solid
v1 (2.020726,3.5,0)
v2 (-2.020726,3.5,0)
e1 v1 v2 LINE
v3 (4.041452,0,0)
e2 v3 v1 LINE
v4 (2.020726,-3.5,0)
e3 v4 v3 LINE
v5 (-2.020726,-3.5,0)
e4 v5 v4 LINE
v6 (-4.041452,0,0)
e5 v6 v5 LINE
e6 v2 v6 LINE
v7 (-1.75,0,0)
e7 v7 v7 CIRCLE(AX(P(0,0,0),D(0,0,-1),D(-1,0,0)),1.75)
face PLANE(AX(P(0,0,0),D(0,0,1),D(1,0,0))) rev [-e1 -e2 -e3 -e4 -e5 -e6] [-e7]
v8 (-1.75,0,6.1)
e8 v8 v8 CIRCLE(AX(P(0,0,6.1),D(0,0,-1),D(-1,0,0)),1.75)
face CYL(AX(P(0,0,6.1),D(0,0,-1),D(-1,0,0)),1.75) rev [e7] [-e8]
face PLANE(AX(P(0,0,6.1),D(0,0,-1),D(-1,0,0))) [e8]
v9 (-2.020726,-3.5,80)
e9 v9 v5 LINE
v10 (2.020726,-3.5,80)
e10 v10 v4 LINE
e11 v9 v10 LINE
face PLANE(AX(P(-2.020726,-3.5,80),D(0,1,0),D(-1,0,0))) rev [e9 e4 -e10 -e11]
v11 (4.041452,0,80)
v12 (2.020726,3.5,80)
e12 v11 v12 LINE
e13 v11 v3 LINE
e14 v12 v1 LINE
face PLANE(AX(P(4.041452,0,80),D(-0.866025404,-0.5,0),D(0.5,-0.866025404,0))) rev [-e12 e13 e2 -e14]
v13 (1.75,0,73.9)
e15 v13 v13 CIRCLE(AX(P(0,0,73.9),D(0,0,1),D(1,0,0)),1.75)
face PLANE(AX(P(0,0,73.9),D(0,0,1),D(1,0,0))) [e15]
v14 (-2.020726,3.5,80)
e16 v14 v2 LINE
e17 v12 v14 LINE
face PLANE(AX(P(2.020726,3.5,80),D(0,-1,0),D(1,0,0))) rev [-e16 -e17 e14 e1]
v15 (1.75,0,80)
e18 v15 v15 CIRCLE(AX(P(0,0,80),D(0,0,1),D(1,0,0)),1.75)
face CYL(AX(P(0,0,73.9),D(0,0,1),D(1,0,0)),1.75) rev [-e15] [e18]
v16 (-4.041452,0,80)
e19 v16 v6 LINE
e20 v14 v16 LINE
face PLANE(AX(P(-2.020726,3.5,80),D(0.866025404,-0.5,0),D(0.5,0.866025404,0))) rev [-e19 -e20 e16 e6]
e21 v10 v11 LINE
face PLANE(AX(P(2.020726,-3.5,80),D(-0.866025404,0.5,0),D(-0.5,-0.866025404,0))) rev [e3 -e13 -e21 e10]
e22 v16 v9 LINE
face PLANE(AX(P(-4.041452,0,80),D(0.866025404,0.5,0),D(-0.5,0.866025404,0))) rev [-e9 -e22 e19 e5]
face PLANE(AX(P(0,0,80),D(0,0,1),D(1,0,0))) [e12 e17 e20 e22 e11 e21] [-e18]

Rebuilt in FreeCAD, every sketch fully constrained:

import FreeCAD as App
import Part
import Sketcher

V = App.Vector
Q = App.Units.Quantity

doc = App.newDocument("Part")
body = doc.addObject("PartDesign::Body", "Body")

sketch1 = body.newObject("Sketcher::SketchObject", "Sketch")
sketch1.AttachmentSupport = (doc.getObject("XY_Plane"), [""])
sketch1.MapMode = "FlatFace"
sketch1.addGeometry([
    Part.LineSegment(V(4.041452, 0, 0), V(2.020726, 3.5, 0)),
    Part.LineSegment(V(2.020726, 3.5, 0), V(-2.020726, 3.5, 0)),
    Part.LineSegment(V(-2.020726, 3.5, 0), V(-4.041452, 0, 0)),
    Part.LineSegment(V(-4.041452, 0, 0), V(-2.020726, -3.5, 0)),
    Part.LineSegment(V(-2.020726, -3.5, 0), V(2.020726, -3.5, 0)),
    Part.LineSegment(V(2.020726, -3.5, 0), V(4.041452, 0, 0)),
], False)
sketch1.addConstraint([
    Sketcher.Constraint("Coincident", 0, 2, 1, 1),
    Sketcher.Constraint("Coincident", 1, 2, 2, 1),
    Sketcher.Constraint("Coincident", 2, 2, 3, 1),
    Sketcher.Constraint("Coincident", 3, 2, 4, 1),
    Sketcher.Constraint("Coincident", 4, 2, 5, 1),
    Sketcher.Constraint("Coincident", 5, 2, 0, 1),
    Sketcher.Constraint("Horizontal", 1),
    Sketcher.Constraint("Horizontal", 4),
    Sketcher.Constraint("Symmetric", 0, 2, 3, 2, -1, 1),
    Sketcher.Constraint("Symmetric", 2, 2, 5, 2, -1, 1),
    Sketcher.Constraint("PointOnObject", 2, 2, -1),
    Sketcher.Constraint("Parallel", 2, 5),
    Sketcher.Constraint("Vertical", 1, 2, 3, 2),
    Sketcher.Constraint("Angle", 0, Q("120 deg")),
    Sketcher.Constraint("DistanceY", 3, 2, 1, 2, 7.0),
    Sketcher.Constraint("DistanceX", 1, 2, 1, 1, 4.041452),
])
pad1 = body.newObject("PartDesign::Pad", "Pad")
pad1.Profile = sketch1
pad1.Length = 80

sketch2 = body.newObject("Sketcher::SketchObject", "Sketch001")
sketch2.AttachmentSupport = (doc.getObject("XY_Plane"), [""])
sketch2.MapMode = "FlatFace"
sketch2.AttachmentOffset = App.Placement(V(0, 0, 80), App.Rotation())
sketch2.addGeometry(Part.Circle(V(0, 0, 0), V(0, 0, 1), 1.75), False)
sketch2.addConstraint([
    Sketcher.Constraint("Coincident", 0, 3, -1, 1),
    Sketcher.Constraint("Diameter", 0, 3.5),
])
pocket1 = body.newObject("PartDesign::Pocket", "Pocket")
pocket1.Profile = sketch2
pocket1.Length = 6.1

sketch3 = body.newObject("Sketcher::SketchObject", "Sketch002")
sketch3.AttachmentSupport = (doc.getObject("XY_Plane"), [""])
sketch3.MapMode = "FlatFace"
sketch3.AttachmentOffset = App.Placement(V(0, 0, 6.1), App.Rotation())
sketch3.addGeometry(Part.Circle(V(0, 0, 0), V(0, 0, 1), 1.75), False)
sketch3.addConstraint([
    Sketcher.Constraint("Coincident", 0, 3, -1, 1),
    Sketcher.Constraint("Diameter", 0, 3.5),
])
pocket2 = body.newObject("PartDesign::Pocket", "Pocket001")
pocket2.Profile = sketch3
pocket2.Length = 6.1

doc.recompute()
